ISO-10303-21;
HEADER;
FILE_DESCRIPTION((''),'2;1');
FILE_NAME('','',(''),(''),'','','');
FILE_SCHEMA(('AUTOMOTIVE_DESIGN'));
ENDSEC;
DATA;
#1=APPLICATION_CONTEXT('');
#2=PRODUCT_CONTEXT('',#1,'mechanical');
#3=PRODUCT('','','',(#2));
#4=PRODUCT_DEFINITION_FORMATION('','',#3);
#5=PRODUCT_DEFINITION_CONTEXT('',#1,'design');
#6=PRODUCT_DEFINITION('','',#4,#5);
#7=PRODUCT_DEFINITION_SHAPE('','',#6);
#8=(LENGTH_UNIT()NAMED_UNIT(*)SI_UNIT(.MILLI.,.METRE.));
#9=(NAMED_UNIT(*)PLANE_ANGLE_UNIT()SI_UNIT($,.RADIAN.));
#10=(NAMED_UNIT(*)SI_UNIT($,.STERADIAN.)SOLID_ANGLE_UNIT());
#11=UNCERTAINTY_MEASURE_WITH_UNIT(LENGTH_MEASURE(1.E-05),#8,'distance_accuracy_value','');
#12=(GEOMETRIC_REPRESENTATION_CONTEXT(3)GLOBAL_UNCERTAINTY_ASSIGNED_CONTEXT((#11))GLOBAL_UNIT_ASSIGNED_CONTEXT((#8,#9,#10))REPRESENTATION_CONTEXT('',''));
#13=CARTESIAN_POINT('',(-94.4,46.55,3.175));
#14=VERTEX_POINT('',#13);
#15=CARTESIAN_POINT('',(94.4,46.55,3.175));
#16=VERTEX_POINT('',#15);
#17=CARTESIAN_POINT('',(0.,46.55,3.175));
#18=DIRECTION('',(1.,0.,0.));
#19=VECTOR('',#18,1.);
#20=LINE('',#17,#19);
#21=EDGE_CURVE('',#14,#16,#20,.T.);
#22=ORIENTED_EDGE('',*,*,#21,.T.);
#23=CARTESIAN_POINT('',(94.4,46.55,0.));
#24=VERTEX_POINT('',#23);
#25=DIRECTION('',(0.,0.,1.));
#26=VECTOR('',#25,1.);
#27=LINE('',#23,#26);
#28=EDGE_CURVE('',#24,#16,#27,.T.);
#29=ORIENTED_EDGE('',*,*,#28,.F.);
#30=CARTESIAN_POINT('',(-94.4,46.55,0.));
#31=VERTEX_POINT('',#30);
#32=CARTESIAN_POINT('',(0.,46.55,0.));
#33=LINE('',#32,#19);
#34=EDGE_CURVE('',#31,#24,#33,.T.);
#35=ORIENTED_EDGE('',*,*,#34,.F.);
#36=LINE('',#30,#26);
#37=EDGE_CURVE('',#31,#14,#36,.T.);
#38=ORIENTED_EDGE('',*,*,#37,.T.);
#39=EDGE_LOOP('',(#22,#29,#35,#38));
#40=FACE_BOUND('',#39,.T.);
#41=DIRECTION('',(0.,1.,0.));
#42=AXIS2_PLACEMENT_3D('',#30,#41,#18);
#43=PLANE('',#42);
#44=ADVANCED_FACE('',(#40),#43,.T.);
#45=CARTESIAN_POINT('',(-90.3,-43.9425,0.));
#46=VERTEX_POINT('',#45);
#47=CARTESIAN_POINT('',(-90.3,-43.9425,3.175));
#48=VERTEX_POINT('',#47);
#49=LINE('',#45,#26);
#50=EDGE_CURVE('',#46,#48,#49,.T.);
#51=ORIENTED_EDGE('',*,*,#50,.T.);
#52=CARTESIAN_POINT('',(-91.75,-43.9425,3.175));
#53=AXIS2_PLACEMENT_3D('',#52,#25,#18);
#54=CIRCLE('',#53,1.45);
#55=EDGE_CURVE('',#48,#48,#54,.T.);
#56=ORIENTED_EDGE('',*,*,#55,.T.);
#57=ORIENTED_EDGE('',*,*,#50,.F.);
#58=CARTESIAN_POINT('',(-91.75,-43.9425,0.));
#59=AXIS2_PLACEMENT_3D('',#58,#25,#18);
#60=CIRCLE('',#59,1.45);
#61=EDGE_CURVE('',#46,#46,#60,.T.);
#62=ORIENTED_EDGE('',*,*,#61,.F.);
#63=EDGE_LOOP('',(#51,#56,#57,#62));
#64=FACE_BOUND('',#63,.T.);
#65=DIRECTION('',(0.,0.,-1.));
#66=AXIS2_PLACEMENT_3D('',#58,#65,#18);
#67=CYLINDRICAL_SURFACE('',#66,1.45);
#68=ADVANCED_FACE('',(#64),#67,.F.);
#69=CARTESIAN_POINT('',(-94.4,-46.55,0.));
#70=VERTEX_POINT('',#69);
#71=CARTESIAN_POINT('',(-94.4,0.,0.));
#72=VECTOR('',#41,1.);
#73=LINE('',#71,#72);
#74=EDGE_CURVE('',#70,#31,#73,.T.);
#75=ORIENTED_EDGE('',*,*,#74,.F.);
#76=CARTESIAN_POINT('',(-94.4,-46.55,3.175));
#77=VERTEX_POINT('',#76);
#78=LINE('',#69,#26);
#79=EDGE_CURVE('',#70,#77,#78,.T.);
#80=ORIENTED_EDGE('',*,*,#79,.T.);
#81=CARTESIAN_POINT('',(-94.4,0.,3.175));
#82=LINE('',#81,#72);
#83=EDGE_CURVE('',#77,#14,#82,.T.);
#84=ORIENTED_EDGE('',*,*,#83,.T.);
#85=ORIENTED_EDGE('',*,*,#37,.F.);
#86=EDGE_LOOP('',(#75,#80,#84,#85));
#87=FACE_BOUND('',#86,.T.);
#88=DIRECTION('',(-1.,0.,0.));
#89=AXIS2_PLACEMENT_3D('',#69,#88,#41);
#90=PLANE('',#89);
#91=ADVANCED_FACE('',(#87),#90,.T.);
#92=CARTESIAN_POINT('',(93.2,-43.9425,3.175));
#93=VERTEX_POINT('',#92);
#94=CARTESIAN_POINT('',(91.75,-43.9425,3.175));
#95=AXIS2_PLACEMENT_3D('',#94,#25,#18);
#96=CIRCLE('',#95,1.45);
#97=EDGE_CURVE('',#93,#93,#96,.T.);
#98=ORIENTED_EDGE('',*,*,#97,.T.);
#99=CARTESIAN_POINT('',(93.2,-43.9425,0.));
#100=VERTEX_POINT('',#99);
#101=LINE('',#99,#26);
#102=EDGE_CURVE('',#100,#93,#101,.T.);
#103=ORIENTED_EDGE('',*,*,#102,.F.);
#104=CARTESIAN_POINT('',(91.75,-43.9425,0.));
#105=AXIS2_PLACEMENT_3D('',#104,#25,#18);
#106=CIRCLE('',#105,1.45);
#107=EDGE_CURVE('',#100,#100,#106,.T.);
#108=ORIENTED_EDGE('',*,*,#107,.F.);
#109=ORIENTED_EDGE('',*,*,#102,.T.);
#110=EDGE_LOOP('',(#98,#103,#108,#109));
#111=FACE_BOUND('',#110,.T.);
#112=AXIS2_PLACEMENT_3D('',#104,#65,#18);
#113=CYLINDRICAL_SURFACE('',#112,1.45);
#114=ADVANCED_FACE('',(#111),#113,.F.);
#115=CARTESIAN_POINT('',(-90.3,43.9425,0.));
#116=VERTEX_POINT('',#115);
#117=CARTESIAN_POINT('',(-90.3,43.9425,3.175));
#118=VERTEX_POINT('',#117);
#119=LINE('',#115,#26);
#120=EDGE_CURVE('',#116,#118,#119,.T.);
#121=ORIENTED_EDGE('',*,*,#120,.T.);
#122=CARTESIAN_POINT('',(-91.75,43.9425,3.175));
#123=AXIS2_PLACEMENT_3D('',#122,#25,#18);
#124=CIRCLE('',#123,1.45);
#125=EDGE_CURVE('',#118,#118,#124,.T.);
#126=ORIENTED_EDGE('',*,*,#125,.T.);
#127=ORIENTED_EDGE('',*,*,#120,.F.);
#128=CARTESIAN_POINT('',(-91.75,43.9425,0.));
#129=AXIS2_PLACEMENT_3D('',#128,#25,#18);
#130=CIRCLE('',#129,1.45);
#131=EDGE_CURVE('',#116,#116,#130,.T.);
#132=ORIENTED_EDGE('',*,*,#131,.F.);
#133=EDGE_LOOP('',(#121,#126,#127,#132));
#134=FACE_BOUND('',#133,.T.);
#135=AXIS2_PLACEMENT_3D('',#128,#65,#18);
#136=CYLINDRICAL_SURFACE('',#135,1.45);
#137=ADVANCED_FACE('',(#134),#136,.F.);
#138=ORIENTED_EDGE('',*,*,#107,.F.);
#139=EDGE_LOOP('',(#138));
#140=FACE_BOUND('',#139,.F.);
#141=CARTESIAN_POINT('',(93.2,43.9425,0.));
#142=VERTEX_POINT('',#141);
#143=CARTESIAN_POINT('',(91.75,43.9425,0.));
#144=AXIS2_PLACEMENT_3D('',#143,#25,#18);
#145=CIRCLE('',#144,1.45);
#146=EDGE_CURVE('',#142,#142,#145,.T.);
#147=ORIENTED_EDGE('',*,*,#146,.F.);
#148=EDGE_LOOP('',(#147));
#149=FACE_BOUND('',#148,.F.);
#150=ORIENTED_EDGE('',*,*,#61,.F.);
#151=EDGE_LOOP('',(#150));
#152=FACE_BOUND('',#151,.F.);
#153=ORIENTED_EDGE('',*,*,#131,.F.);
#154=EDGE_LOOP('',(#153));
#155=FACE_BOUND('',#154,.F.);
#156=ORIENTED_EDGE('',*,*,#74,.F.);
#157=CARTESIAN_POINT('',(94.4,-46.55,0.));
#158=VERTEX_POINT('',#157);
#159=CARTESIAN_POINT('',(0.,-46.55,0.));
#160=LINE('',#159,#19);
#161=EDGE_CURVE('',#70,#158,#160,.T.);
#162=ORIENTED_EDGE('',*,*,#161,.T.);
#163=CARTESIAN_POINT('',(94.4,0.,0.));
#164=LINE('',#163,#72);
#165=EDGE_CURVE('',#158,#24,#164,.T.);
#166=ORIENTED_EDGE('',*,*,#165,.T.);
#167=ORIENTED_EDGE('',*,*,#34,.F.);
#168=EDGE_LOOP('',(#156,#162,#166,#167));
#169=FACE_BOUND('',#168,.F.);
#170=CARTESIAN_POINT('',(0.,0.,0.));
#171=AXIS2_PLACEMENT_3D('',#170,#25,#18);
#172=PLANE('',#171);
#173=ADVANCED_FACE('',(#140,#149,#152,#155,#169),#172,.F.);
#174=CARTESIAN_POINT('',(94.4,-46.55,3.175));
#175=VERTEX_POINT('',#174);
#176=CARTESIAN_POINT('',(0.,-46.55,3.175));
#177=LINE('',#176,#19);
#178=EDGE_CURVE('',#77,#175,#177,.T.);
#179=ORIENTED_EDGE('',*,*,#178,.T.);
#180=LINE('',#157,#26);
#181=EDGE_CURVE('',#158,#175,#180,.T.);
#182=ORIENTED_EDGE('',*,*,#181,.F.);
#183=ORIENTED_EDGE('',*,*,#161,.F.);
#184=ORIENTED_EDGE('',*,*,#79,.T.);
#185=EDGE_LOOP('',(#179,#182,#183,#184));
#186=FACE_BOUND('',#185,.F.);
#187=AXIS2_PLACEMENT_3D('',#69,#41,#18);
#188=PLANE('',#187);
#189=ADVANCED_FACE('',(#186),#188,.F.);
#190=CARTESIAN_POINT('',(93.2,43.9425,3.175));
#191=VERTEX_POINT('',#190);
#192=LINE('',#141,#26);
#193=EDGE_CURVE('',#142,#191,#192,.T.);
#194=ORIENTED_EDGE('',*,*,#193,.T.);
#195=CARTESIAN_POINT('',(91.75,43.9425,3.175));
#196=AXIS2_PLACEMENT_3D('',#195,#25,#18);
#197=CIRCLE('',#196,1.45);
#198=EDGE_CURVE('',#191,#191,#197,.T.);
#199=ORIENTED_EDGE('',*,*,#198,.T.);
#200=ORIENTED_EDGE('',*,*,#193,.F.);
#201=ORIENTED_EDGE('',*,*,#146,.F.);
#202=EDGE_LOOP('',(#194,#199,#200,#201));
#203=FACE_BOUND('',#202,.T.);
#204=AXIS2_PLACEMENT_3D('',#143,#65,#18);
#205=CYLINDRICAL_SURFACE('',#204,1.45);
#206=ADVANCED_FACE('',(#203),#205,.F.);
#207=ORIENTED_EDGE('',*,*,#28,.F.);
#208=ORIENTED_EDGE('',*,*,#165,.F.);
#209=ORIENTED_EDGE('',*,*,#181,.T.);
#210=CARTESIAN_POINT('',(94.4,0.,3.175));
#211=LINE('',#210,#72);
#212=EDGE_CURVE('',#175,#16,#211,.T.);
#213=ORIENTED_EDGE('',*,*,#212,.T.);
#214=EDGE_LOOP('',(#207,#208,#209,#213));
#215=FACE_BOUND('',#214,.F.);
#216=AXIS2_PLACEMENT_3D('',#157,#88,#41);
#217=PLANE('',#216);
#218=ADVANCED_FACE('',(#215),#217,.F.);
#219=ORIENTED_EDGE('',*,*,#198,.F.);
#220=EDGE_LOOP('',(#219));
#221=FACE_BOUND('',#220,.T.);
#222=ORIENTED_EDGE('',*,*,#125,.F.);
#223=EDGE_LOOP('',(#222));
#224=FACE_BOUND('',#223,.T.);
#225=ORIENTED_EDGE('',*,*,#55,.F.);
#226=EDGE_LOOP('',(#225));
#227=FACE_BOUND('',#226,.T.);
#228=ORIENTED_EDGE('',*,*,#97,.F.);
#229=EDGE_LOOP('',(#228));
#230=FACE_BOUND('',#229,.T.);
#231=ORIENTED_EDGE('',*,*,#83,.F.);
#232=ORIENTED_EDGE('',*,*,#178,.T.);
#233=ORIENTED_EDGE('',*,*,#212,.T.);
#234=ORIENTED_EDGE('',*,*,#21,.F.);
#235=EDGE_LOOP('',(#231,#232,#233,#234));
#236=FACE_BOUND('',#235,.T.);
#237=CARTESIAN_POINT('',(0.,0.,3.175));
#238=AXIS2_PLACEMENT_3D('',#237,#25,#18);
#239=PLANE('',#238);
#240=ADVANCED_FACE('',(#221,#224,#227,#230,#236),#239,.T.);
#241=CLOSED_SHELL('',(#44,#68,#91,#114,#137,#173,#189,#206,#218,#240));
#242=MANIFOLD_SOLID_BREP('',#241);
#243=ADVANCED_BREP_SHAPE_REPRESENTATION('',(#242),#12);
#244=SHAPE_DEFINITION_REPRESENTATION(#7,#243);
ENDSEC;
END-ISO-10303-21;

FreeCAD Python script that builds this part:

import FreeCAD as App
import Part
import Sketcher
Q = App.Units.Quantity

doc = App.newDocument("Part")
body = doc.addObject("PartDesign::Body", "Body")

# Sketch on XY plane
sketch1 = body.newObject("Sketcher::SketchObject", "Sketch")
sketch1.AttachmentSupport = (doc.getObject("XY_Plane"), [""])
sketch1.MapMode = "FlatFace"
sketch1.addGeometry(Part.LineSegment(App.Vector(-94.4, 46.5, 0), App.Vector(-94.4, -46.5, 0)), False)
sketch1.addGeometry(Part.LineSegment(App.Vector(-94.4, -46.5, 0), App.Vector(94.4, -46.5, 0)), False)
sketch1.addGeometry(Part.LineSegment(App.Vector(94.4, -46.5, 0), App.Vector(94.4, 46.5, 0)), False)
sketch1.addGeometry(Part.LineSegment(App.Vector(94.4, 46.5, 0), App.Vector(-94.4, 46.5, 0)), False)
sketch1.addGeometry(Part.Circle(App.Vector(-91.8, -43.9, 0), App.Vector(0, 0, 1), 1.4), False)
sketch1.addGeometry(Part.Circle(App.Vector(91.8, -43.9, 0), App.Vector(0, 0, 1), 1.4), False)
sketch1.addGeometry(Part.Circle(App.Vector(-91.8, 43.9, 0), App.Vector(0, 0, 1), 1.4), False)
sketch1.addGeometry(Part.Circle(App.Vector(91.8, 43.9, 0), App.Vector(0, 0, 1), 1.4), False)
sketch1.addConstraint(Sketcher.Constraint("Coincident", 0, 2, 1, 1))
sketch1.addConstraint(Sketcher.Constraint("Coincident", 1, 2, 2, 1))
sketch1.addConstraint(Sketcher.Constraint("Coincident", 2, 2, 3, 1))
sketch1.addConstraint(Sketcher.Constraint("Coincident", 3, 2, 0, 1))
sketch1.addConstraint(Sketcher.Constraint("Vertical", 0))
sketch1.addConstraint(Sketcher.Constraint("Horizontal", 1))
sketch1.addConstraint(Sketcher.Constraint("Vertical", 2))
sketch1.addConstraint(Sketcher.Constraint("Horizontal", 3))
sketch1.addConstraint(Sketcher.Constraint("Equal", 4, 5))
sketch1.addConstraint(Sketcher.Constraint("Equal", 5, 6))
sketch1.addConstraint(Sketcher.Constraint("Equal", 6, 7))
sketch1.addConstraint(Sketcher.Constraint("Symmetric", 5, 3, 6, 3, -1, 1))
sketch1.addConstraint(Sketcher.Constraint("Symmetric", 4, 3, 7, 3, -1, 1))
sketch1.addConstraint(Sketcher.Constraint("Symmetric", 0, 2, 2, 2, -1, 1))
sketch1.addConstraint(Sketcher.Constraint("Symmetric", 4, 3, 5, 3, -2))
sketch1.addConstraint(Sketcher.Constraint("Diameter", 4, Q("2.9 mm")))
sketch1.addConstraint(Sketcher.Constraint("DistanceX", 1, 1, 1, 2, Q("188.8 mm")))
sketch1.addConstraint(Sketcher.Constraint("DistanceY", 0, 2, 0, 1, Q("93.1 mm")))
sketch1.addConstraint(Sketcher.Constraint("DistanceX", 4, 3, 5, 3, Q("183.5 mm")))
sketch1.addConstraint(Sketcher.Constraint("DistanceY", 4, 3, 6, 3, Q("87.885 mm")))
pad1 = body.newObject("PartDesign::Pad", "Pad")
pad1.Profile = sketch1
pad1.Length = 3.175

doc.recompute()
